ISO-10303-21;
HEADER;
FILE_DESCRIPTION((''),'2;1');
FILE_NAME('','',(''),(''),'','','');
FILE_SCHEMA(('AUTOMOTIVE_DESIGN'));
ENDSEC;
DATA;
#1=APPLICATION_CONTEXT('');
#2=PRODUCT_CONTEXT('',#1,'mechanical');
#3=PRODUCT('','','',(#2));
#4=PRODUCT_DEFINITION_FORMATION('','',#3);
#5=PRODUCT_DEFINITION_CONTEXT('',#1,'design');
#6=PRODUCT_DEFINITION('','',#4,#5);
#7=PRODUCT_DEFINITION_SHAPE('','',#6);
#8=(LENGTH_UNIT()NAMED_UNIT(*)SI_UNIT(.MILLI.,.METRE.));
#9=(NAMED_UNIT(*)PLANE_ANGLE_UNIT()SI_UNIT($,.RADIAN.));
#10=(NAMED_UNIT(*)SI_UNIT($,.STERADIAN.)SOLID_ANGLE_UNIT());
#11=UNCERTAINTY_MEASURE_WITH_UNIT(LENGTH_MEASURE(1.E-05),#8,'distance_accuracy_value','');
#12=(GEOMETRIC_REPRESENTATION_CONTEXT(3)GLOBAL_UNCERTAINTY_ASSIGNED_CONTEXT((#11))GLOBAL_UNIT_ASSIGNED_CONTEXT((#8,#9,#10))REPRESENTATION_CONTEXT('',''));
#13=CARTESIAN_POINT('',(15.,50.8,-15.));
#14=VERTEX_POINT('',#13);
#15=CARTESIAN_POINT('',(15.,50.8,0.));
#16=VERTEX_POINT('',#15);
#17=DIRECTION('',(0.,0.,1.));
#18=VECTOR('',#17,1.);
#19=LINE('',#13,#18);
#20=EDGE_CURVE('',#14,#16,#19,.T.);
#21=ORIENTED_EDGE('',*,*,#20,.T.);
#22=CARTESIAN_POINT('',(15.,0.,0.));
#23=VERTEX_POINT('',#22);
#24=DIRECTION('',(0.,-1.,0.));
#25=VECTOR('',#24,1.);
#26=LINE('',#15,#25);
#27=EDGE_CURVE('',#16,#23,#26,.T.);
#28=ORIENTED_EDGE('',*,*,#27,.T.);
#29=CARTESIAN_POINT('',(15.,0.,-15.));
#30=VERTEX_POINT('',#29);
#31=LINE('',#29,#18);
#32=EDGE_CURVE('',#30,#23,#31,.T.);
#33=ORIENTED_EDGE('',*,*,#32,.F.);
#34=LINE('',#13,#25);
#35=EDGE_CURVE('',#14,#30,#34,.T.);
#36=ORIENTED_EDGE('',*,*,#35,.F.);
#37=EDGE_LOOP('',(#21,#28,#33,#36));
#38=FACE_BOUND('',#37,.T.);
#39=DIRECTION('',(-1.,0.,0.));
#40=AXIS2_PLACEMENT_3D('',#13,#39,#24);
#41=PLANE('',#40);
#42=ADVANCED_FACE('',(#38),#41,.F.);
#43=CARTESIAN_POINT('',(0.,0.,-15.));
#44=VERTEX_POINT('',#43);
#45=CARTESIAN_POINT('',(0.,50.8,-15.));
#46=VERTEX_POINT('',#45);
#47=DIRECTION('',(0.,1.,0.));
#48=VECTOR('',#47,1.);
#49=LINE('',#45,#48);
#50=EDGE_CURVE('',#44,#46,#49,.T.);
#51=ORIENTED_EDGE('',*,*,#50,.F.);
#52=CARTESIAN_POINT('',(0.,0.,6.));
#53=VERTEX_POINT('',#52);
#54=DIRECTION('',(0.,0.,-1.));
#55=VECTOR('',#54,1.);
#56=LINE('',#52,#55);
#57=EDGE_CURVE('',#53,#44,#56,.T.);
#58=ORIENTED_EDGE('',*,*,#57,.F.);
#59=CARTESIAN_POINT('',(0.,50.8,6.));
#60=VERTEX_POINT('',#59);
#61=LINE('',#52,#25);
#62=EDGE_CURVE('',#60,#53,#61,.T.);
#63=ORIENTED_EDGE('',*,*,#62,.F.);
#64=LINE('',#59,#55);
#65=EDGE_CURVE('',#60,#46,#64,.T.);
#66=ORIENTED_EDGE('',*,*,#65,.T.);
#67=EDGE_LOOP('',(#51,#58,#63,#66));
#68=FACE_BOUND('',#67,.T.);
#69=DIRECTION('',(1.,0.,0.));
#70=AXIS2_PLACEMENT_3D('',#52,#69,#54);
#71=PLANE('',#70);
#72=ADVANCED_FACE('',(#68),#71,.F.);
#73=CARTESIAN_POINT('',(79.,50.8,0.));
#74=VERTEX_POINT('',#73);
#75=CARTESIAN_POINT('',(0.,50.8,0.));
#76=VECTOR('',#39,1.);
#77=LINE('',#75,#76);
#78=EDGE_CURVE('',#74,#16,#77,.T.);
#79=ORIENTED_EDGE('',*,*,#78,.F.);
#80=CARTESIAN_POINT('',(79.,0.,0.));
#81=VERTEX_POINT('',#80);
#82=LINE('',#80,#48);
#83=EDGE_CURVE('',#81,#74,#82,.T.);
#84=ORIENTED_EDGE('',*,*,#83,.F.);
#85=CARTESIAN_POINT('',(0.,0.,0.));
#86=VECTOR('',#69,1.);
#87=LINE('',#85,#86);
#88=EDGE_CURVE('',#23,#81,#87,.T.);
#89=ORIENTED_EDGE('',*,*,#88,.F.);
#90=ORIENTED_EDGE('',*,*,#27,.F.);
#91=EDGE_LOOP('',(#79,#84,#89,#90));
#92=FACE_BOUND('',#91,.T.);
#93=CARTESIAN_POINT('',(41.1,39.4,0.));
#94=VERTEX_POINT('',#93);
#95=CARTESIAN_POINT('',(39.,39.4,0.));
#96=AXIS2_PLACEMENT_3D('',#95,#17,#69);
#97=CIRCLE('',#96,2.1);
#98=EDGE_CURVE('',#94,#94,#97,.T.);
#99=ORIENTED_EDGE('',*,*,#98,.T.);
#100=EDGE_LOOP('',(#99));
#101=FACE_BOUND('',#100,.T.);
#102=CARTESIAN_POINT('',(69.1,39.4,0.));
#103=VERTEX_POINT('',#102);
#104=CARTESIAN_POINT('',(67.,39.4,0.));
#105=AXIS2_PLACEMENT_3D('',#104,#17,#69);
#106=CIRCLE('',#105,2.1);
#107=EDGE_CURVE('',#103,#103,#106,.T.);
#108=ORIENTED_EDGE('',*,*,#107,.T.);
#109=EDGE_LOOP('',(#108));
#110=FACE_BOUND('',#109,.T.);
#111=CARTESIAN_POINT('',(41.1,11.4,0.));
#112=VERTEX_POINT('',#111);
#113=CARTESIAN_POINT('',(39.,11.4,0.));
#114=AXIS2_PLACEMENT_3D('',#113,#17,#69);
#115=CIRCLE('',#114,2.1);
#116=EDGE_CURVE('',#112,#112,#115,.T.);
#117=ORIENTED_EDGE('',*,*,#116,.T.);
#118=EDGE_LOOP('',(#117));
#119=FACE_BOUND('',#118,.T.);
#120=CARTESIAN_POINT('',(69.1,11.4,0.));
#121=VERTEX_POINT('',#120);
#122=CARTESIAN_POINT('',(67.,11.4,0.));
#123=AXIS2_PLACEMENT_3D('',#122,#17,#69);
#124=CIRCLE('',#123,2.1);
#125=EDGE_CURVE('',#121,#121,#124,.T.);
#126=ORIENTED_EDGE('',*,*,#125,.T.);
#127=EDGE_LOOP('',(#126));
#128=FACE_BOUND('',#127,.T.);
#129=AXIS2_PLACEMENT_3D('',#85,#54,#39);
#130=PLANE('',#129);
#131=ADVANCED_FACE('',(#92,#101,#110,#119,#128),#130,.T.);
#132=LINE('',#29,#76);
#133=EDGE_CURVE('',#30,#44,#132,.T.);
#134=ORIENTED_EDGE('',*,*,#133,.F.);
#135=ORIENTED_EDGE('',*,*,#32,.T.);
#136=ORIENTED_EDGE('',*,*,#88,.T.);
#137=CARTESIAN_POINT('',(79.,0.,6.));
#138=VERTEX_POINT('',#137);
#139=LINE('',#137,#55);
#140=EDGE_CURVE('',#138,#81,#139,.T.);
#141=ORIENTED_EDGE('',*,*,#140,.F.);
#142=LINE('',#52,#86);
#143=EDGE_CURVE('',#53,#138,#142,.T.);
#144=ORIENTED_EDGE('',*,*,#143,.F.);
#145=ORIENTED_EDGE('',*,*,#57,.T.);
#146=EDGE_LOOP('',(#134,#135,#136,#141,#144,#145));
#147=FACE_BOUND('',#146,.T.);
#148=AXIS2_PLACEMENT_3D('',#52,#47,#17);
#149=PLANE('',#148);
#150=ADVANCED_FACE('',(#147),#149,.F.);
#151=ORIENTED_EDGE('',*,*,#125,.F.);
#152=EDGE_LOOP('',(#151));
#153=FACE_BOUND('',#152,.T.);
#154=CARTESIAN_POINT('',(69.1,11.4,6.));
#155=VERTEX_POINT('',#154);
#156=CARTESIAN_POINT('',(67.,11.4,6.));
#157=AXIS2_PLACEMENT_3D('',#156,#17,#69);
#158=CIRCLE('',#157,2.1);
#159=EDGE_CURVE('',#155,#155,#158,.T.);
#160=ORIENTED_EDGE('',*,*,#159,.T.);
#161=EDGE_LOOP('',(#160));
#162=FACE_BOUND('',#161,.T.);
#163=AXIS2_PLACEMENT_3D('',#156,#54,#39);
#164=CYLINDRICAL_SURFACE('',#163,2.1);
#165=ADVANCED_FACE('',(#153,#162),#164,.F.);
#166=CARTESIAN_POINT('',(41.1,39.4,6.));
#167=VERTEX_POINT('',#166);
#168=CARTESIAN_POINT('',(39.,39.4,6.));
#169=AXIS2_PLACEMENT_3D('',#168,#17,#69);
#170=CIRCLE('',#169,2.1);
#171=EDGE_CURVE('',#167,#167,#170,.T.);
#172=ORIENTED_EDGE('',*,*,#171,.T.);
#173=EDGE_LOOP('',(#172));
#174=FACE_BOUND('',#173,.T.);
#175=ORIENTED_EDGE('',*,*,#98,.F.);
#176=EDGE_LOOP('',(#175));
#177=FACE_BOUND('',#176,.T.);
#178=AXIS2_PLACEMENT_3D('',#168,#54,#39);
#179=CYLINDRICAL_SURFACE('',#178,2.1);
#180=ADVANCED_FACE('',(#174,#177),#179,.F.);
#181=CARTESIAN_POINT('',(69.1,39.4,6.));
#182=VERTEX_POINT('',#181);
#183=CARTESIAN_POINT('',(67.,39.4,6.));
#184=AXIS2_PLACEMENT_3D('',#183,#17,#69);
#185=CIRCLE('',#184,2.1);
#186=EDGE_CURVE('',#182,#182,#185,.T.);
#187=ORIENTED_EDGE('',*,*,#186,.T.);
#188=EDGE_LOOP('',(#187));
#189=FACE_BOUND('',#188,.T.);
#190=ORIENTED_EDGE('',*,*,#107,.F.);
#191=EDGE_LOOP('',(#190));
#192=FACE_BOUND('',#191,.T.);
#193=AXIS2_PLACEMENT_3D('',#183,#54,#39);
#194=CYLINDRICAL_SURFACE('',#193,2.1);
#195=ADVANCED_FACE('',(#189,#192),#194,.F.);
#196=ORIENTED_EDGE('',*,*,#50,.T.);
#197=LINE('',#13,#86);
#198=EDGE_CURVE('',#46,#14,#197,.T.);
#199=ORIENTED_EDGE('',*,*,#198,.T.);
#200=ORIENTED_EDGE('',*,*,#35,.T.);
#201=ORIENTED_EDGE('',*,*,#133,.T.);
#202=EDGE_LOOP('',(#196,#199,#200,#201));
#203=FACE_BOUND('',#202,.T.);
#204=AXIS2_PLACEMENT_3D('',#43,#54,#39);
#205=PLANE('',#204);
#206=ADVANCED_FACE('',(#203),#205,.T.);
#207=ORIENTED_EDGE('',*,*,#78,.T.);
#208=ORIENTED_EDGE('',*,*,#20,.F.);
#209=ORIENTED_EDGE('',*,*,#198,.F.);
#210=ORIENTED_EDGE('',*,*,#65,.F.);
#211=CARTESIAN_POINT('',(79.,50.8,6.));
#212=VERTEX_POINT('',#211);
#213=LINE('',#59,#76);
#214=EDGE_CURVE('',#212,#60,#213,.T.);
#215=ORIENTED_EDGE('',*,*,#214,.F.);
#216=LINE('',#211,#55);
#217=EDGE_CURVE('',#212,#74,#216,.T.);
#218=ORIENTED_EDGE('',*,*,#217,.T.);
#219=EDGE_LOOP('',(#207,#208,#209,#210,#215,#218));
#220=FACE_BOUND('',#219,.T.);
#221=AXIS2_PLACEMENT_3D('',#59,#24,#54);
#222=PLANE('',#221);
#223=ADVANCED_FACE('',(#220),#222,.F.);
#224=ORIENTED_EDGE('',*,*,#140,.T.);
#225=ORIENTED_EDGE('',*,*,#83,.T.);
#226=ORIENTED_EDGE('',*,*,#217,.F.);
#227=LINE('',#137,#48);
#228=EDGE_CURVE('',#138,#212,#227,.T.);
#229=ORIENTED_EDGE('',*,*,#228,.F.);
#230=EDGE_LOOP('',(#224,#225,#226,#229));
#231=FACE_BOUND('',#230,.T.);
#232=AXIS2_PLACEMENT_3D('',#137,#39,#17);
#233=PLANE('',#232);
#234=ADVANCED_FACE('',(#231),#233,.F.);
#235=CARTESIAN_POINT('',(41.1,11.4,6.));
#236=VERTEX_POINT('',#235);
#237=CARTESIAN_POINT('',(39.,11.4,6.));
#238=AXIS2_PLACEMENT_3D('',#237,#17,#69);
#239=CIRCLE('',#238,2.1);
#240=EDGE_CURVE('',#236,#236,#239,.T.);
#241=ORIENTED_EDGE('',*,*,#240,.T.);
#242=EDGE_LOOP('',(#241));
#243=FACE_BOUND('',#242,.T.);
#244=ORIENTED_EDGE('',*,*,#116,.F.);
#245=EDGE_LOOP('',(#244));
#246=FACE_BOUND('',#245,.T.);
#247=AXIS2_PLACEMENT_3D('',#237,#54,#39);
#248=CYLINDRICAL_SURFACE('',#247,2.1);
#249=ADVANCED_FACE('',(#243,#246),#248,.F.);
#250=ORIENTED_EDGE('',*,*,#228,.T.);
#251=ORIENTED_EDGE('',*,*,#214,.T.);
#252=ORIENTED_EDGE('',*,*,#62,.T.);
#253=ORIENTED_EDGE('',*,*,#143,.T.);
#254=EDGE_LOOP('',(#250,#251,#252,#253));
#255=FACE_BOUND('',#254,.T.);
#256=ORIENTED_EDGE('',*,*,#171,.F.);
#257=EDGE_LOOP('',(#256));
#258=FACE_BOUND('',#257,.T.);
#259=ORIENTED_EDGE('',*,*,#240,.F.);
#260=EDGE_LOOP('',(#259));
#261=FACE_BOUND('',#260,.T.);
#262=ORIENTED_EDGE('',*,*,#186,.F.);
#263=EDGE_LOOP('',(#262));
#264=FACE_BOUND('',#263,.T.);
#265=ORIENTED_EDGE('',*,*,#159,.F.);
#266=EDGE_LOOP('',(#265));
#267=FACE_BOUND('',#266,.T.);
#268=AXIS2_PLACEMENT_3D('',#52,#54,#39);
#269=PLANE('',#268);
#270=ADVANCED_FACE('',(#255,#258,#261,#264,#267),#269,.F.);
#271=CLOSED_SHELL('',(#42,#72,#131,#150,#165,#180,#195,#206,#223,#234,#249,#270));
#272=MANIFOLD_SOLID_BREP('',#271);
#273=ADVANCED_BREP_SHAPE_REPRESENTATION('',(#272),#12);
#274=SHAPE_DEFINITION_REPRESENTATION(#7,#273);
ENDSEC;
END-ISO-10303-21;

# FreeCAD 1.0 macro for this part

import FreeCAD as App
import Part
import Sketcher

V = App.Vector
Q = App.Units.Quantity


def add_polygon(sketch, points):
    """Adds a closed chain of lines whose ends are joined by coincident constraints."""
    first, n = sketch.GeometryCount, len(points)
    for a, b in zip(points, points[1:] + points[:1]):
        sketch.addGeometry(Part.LineSegment(App.Vector(*a, 0), App.Vector(*b, 0)), False)
    for i in range(n):
        sketch.addConstraint(Sketcher.Constraint("Coincident", first + i, 2, first + (i + 1) % n, 1))

doc = App.newDocument("Part")
params = doc.addObject("Spreadsheet::Sheet", "Params")
for row, (alias, value) in enumerate([
    ("sketch1_diameter", "4.2 mm"),
    ("sketch1_width", "79 mm"),
    ("sketch1_height", "50.8 mm"),
    ("pad1_length", "6 mm"),
    ("sketch2_width", "15 mm"),
    ("sketch2_height", "50.8 mm"),
    ("pad2_length", "15 mm"),
], start=1):
    params.set(f"A{row}", alias)
    params.set(f"B{row}", "=" + value)
    params.setAlias(f"B{row}", alias)

body = doc.addObject("PartDesign::Body", "Body")

# Sketch on XY plane
sketch1 = body.newObject("Sketcher::SketchObject", "Sketch")
sketch1.AttachmentSupport = (doc.getObject("XY_Plane"), [""])
sketch1.MapMode = "FlatFace"
add_polygon(sketch1, [(0, 50.8), (0, 0), (79, 0), (79, 50.8)])  # lines 0-3
sketch1.addGeometry(Part.Circle(V(39, 11.4, 0), V(0, 0, 1), 2.1), False)  # 4
sketch1.addGeometry(Part.Circle(V(67, 11.4, 0), V(0, 0, 1), 2.1), False)  # 5
sketch1.addGeometry(Part.Circle(V(39, 39.4, 0), V(0, 0, 1), 2.1), False)  # 6
sketch1.addGeometry(Part.Circle(V(67, 39.4, 0), V(0, 0, 1), 2.1), False)  # 7
sketch1.addConstraint([
    Sketcher.Constraint("Vertical", 0),
    Sketcher.Constraint("Horizontal", 1),
    Sketcher.Constraint("Vertical", 2),
    Sketcher.Constraint("Horizontal", 3),
    Sketcher.Constraint("Coincident", 0, 2, -1, 1),
    Sketcher.Constraint("Equal", 4, 5),
    Sketcher.Constraint("Equal", 5, 6),
    Sketcher.Constraint("Equal", 6, 7),
    Sketcher.Constraint("Horizontal", 4, 3, 5, 3),
    Sketcher.Constraint("Horizontal", 6, 3, 7, 3),
    Sketcher.Constraint("Vertical", 4, 3, 6, 3),
    Sketcher.Constraint("Vertical", 5, 3, 7, 3),
    Sketcher.Constraint("Diameter", 4, Q("4.2 mm")),
    Sketcher.Constraint("DistanceX", 1, 1, 1, 2, Q("79 mm")),
    Sketcher.Constraint("DistanceY", 0, 2, 0, 1, Q("50.8 mm")),
    Sketcher.Constraint("DistanceX", -1, 1, 4, 3, Q("39 mm")),
    Sketcher.Constraint("DistanceX", -1, 1, 5, 3, Q("67 mm")),
    Sketcher.Constraint("DistanceY", 4, 3, 6, 3, Q("28 mm")),
    Sketcher.Constraint("DistanceY", -1, 1, 4, 3, Q("11.4 mm")),
])
sketch1.setExpression("Constraints[16]", "Params.sketch1_diameter")
sketch1.setExpression("Constraints[17]", "Params.sketch1_width")
sketch1.setExpression("Constraints[18]", "Params.sketch1_height")
pad1 = body.newObject("PartDesign::Pad", "Pad")
pad1.Profile = sketch1
pad1.setExpression("Length", "Params.pad1_length")

# Sketch on XY plane
sketch2 = body.newObject("Sketcher::SketchObject", "Sketch001")
sketch2.AttachmentSupport = (doc.getObject("XY_Plane"), [""])
sketch2.MapMode = "FlatFace"
add_polygon(sketch2, [(15, 50.8), (15, 0), (0, 0), (0, 50.8)])  # lines 0-3
sketch2.addConstraint([
    Sketcher.Constraint("Vertical", 0),
    Sketcher.Constraint("Horizontal", 1),
    Sketcher.Constraint("Vertical", 2),
    Sketcher.Constraint("Horizontal", 3),
    Sketcher.Constraint("Coincident", 1, 2, -1, 1),
    Sketcher.Constraint("DistanceX", 1, 2, 1, 1, Q("15 mm")),
    Sketcher.Constraint("DistanceY", 0, 2, 0, 1, Q("50.8 mm")),
])
sketch2.setExpression("Constraints[9]", "Params.sketch2_width")
sketch2.setExpression("Constraints[10]", "Params.sketch2_height")
pad2 = body.newObject("PartDesign::Pad", "Pad001")
pad2.Profile = sketch2
pad2.setExpression("Length", "Params.pad2_length")
pad2.Reversed = True

doc.recompute()
